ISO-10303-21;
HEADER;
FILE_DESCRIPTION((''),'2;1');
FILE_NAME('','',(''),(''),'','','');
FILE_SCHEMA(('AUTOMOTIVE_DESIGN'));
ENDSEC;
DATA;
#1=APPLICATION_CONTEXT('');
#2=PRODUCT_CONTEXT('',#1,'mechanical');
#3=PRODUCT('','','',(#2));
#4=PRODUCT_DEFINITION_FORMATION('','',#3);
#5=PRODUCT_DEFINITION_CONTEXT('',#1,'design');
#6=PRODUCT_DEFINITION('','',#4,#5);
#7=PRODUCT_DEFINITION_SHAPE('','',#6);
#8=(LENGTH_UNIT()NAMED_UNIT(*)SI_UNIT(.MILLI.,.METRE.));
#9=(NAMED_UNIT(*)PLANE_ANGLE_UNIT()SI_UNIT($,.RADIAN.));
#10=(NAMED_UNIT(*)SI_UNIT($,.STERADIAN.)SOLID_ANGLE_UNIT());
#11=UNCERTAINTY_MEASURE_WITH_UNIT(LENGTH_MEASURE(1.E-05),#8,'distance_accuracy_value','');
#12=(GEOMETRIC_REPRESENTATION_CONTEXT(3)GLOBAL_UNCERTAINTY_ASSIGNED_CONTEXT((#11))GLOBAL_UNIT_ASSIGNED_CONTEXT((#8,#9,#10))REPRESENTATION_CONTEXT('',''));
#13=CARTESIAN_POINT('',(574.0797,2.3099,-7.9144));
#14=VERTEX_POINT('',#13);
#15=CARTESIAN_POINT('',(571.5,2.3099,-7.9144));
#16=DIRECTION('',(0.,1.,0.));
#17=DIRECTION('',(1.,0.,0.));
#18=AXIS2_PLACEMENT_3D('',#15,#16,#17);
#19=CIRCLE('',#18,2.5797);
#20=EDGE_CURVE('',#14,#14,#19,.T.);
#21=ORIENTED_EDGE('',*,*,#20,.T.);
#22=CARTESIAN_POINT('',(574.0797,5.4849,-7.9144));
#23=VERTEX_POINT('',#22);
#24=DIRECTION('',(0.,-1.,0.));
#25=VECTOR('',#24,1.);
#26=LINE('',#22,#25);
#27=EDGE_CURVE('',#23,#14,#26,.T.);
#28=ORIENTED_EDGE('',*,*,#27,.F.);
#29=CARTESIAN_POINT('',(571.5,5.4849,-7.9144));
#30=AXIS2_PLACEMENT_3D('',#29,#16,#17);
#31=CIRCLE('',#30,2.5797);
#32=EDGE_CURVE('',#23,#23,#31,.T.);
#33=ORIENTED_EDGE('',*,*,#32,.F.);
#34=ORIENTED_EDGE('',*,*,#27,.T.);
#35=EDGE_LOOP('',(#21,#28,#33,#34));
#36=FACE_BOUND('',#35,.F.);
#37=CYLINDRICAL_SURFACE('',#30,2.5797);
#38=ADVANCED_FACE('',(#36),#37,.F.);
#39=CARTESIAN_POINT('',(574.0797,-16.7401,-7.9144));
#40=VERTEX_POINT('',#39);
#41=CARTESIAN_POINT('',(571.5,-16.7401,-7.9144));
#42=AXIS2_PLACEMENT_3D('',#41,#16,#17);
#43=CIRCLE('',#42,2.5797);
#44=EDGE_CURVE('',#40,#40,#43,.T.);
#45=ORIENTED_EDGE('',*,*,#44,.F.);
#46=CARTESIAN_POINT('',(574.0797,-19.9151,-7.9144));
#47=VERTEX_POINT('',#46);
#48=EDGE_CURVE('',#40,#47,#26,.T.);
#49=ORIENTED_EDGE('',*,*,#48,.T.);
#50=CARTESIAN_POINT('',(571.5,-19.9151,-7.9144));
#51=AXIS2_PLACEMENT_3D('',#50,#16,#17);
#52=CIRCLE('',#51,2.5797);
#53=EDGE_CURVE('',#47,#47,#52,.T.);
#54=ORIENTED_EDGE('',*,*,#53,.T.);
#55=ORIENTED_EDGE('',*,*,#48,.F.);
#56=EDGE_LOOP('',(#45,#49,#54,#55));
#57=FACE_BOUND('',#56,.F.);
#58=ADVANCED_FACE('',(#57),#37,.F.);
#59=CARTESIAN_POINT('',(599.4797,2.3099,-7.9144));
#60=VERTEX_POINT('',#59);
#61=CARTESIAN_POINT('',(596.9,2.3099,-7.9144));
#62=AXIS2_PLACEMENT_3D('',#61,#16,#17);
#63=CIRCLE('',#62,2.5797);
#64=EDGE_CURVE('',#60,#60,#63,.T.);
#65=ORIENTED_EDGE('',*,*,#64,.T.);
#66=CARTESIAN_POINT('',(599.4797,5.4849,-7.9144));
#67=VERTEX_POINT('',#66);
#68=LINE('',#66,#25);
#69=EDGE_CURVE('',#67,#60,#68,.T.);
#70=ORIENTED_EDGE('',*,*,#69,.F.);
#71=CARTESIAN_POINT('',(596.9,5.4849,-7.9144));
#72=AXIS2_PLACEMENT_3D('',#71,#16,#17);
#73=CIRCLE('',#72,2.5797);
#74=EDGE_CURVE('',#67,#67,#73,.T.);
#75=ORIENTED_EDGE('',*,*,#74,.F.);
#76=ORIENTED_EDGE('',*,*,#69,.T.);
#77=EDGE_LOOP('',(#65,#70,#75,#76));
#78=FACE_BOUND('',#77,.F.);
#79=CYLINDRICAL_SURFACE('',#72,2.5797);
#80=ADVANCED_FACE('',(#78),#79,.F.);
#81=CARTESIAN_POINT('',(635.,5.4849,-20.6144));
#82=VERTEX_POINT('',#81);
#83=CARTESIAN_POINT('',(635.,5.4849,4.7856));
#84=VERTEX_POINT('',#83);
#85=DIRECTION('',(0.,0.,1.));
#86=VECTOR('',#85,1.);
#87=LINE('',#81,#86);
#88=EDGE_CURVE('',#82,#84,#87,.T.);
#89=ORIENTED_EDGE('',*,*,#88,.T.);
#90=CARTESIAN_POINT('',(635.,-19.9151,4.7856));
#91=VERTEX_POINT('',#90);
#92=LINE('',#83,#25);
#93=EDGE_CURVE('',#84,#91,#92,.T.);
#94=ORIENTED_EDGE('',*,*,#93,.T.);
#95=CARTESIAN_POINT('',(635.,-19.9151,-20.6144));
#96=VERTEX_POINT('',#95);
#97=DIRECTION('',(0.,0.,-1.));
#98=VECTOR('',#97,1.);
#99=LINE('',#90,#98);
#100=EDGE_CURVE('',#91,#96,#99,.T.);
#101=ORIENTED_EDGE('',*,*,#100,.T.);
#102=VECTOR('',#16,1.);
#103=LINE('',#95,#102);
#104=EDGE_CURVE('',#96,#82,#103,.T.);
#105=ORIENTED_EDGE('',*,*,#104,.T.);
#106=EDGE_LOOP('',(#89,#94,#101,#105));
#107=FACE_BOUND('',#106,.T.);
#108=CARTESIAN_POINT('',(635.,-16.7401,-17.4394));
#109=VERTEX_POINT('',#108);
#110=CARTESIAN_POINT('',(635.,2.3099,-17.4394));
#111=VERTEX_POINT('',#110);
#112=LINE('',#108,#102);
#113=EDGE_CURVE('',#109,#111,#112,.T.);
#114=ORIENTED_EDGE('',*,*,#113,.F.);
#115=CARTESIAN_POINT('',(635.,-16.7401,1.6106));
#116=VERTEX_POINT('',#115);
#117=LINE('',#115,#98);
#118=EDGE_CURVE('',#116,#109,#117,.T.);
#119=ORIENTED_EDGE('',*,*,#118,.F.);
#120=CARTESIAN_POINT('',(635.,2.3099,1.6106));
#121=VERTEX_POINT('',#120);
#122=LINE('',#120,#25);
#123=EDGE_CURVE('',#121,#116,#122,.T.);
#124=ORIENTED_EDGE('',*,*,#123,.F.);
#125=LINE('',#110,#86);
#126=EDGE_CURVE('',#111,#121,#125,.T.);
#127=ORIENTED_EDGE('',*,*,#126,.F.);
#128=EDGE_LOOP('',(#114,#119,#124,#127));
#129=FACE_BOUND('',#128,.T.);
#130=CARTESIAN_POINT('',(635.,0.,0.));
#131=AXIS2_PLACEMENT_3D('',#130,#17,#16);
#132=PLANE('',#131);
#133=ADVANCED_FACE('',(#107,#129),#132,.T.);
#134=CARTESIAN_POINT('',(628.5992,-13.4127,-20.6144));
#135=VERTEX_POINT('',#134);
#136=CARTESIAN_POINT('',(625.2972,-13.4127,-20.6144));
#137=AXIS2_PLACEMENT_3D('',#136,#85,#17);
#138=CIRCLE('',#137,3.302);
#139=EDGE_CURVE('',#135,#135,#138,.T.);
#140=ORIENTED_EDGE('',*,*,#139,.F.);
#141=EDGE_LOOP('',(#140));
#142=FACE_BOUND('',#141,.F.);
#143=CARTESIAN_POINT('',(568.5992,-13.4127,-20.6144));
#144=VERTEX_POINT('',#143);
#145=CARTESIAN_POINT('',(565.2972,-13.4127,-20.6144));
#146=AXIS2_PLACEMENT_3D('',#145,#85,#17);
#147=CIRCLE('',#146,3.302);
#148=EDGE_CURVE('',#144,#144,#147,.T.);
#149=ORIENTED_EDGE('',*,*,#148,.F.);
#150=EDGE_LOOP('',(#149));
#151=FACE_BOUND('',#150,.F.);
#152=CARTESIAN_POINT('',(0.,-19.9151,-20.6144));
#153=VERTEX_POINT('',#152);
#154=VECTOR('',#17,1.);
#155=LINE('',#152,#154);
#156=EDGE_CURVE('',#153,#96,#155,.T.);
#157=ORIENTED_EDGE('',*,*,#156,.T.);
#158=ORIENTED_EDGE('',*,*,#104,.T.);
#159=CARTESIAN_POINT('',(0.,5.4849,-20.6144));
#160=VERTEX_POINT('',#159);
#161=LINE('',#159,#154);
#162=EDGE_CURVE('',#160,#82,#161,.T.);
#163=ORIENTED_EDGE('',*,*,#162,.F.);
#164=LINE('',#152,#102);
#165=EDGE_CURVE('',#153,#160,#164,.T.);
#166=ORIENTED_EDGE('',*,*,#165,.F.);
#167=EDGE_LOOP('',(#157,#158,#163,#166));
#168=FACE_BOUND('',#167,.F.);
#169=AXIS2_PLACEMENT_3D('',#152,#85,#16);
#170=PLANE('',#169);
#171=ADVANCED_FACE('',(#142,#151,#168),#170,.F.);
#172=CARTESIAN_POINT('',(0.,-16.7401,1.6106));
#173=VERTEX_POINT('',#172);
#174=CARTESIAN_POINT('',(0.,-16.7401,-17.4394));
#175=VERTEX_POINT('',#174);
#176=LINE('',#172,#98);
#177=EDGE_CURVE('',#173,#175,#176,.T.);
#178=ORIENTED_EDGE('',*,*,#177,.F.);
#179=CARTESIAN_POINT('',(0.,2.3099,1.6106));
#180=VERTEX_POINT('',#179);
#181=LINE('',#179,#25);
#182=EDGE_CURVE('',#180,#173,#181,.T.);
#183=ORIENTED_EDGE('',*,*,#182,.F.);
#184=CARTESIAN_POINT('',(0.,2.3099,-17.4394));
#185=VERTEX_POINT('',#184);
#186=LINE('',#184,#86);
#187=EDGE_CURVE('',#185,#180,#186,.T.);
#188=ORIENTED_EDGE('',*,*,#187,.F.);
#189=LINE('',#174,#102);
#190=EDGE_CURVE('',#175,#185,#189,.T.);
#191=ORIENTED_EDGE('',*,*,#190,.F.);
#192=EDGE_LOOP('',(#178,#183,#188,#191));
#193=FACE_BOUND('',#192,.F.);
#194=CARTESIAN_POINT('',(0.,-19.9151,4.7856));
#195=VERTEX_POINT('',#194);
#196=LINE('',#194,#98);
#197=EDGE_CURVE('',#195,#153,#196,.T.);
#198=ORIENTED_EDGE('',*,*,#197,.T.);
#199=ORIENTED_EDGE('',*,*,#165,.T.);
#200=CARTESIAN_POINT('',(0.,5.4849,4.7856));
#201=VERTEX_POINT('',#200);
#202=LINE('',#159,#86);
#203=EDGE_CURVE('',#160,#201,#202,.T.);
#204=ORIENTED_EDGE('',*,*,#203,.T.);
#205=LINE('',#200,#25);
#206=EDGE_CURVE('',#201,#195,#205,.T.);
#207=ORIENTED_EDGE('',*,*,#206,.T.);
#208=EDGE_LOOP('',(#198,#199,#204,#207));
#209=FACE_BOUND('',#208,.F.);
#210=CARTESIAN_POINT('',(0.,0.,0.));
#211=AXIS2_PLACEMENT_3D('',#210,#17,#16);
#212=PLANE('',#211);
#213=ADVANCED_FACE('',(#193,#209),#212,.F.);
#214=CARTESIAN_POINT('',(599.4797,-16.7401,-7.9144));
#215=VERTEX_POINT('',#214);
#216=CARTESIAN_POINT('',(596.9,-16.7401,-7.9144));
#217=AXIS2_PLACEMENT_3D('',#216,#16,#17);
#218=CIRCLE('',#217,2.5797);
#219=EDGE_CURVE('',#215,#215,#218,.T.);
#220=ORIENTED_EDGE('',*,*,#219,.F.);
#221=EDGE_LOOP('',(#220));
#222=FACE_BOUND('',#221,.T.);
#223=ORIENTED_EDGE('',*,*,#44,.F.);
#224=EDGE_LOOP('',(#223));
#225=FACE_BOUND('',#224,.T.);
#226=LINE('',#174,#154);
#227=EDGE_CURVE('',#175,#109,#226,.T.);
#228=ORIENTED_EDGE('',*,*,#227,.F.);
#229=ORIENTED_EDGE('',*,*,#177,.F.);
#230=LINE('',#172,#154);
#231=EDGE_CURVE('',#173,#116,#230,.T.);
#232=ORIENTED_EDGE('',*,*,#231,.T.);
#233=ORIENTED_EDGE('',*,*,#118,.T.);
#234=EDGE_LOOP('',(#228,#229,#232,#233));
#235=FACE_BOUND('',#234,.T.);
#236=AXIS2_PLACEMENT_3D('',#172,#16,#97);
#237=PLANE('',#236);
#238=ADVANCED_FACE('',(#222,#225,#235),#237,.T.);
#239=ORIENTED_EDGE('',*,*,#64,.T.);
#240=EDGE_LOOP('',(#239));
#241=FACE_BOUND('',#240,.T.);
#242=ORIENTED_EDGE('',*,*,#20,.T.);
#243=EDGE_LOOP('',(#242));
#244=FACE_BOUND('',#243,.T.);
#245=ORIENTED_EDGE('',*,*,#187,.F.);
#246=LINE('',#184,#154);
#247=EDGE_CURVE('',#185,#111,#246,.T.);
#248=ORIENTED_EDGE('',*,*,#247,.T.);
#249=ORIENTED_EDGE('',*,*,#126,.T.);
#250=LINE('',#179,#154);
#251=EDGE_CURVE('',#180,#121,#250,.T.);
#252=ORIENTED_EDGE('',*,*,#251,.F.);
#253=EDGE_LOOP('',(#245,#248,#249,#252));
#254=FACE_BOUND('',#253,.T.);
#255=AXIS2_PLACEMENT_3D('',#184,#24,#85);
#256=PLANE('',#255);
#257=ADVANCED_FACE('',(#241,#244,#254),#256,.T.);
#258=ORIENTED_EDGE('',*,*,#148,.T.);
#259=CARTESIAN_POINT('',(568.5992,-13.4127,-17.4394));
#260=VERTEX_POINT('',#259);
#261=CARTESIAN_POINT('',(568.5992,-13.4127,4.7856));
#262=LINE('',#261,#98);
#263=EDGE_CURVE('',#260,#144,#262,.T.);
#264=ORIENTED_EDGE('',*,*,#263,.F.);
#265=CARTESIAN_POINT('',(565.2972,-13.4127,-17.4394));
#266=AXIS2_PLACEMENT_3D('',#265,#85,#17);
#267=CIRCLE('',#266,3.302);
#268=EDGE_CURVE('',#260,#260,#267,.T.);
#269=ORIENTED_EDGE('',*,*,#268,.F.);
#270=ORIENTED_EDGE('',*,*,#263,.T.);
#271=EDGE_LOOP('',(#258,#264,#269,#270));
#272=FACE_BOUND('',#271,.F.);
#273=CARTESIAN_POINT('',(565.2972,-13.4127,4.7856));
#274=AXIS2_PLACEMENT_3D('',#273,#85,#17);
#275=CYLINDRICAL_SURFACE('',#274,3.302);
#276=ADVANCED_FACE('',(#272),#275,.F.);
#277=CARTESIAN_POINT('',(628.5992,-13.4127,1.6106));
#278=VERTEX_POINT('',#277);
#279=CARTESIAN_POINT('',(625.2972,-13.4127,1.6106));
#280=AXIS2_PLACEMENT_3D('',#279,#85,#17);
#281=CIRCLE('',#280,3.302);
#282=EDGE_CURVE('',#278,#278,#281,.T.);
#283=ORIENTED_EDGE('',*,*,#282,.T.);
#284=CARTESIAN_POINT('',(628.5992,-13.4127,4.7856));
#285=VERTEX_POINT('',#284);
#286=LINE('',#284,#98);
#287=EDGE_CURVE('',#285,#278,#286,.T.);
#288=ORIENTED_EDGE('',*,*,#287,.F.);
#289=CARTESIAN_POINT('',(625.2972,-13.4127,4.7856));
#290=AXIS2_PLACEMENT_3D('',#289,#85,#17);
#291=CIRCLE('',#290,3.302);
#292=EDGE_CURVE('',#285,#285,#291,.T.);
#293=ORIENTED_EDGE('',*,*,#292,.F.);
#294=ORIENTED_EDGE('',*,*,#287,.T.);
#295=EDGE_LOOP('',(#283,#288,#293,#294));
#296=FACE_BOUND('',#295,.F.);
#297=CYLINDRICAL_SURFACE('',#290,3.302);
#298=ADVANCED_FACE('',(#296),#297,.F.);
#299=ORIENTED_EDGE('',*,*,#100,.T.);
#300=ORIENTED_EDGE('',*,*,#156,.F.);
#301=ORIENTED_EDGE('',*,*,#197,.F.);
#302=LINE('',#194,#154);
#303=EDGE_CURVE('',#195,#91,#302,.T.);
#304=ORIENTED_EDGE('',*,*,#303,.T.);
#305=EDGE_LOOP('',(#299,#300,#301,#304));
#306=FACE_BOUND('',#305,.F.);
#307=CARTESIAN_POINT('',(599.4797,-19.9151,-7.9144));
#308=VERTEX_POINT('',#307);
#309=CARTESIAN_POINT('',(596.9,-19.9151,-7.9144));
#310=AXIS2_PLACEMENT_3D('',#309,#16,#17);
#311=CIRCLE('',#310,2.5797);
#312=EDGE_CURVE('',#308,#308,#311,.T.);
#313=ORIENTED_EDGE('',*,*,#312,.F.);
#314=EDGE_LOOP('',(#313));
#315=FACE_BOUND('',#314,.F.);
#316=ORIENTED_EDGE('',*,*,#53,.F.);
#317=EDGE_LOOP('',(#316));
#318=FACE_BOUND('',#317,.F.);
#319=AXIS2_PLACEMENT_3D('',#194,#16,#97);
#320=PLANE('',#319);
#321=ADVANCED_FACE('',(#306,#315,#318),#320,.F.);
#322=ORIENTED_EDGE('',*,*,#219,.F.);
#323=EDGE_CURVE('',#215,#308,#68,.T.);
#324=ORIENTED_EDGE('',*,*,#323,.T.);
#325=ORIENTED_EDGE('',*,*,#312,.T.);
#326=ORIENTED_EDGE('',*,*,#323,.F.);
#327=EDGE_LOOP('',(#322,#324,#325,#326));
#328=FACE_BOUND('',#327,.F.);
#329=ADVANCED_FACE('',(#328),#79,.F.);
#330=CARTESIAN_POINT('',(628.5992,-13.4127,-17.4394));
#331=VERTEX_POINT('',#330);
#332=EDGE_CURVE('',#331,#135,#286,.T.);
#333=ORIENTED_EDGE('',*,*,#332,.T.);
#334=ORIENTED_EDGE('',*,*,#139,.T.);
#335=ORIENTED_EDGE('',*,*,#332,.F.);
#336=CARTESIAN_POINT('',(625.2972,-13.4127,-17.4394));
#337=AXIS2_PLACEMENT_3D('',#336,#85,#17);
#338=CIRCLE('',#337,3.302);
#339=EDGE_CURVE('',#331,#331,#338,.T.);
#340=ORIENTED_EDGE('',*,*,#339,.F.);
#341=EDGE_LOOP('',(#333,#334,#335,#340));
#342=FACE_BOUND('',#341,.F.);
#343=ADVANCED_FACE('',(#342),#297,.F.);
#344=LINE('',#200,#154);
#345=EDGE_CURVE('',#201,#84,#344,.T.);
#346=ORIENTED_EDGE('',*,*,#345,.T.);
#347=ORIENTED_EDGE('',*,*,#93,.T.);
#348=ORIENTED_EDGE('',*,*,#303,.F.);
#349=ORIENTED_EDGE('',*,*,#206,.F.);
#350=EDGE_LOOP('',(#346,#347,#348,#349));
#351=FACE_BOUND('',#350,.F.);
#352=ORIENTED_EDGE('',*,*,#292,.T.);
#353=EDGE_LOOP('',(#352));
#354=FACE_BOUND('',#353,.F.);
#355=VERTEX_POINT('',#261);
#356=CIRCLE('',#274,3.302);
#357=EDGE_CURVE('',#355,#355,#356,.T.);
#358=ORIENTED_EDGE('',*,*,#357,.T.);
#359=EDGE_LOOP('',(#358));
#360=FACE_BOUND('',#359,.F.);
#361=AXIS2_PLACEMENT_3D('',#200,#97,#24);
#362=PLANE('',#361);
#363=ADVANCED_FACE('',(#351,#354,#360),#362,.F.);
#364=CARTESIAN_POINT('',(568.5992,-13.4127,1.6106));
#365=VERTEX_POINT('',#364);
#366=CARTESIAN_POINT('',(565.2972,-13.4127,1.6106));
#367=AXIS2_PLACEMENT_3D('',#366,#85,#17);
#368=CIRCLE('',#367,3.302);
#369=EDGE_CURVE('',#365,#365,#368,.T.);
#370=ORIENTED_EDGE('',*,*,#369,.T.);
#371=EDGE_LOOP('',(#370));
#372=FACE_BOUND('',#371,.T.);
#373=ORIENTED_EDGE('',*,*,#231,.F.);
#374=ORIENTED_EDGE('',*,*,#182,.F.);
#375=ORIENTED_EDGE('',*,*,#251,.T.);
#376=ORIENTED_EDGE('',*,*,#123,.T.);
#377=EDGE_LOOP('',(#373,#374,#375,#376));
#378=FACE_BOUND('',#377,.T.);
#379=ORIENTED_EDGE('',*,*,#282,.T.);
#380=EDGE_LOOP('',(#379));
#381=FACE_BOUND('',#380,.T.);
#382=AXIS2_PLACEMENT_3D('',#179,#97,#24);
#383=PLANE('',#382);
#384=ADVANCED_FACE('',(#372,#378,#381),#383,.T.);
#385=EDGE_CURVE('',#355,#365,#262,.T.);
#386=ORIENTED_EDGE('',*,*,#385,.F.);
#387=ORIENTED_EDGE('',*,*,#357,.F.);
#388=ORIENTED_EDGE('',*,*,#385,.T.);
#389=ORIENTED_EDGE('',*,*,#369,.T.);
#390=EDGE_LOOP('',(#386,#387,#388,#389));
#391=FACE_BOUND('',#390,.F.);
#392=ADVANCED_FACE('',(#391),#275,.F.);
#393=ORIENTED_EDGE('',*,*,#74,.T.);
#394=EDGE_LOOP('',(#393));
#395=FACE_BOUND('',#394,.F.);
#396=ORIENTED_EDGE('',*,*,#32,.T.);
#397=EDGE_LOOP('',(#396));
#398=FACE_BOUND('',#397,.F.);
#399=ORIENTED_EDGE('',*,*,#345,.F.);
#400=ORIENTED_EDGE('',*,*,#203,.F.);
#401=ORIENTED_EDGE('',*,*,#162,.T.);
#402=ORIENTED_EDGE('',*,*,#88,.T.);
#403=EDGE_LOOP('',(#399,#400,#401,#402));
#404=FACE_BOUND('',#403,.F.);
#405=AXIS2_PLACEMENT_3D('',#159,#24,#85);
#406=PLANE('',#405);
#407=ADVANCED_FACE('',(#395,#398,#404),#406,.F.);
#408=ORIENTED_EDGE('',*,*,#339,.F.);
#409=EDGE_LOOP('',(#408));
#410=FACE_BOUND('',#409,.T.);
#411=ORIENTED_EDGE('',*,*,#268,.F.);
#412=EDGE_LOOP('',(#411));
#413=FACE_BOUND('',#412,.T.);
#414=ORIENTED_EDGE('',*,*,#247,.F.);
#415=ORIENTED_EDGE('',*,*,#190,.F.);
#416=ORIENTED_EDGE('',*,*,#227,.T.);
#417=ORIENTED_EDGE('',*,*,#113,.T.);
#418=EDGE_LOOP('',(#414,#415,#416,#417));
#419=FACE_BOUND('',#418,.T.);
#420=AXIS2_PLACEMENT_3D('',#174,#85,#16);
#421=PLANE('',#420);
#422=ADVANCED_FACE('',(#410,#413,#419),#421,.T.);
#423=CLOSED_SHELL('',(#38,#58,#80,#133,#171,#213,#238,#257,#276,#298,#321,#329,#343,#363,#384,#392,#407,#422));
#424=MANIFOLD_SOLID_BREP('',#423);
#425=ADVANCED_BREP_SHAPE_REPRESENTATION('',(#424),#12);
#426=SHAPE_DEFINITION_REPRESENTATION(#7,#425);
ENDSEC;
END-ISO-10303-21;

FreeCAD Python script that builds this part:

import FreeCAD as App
import Part
import Sketcher
Q = App.Units.Quantity


def add_polygon(sketch, points):
    """Adds a closed chain of lines whose ends are joined by coincident constraints."""
    first, n = sketch.GeometryCount, len(points)
    for a, b in zip(points, points[1:] + points[:1]):
        sketch.addGeometry(Part.LineSegment(App.Vector(*a, 0), App.Vector(*b, 0)), False)
    for i in range(n):
        sketch.addConstraint(Sketcher.Constraint("Coincident", first + i, 2, first + (i + 1) % n, 1))

doc = App.newDocument("Part")
body = doc.addObject("PartDesign::Body", "Body")

# Sketch on YZ plane
sketch1 = body.newObject("Sketcher::SketchObject", "Sketch")
sketch1.AttachmentSupport = (doc.getObject("YZ_Plane"), [""])
sketch1.MapMode = "FlatFace"
add_polygon(sketch1, [(5, -21), (5, 5), (-20, 5), (-20, -21)])  # lines 0-3
add_polygon(sketch1, [(-17, 2), (2, 2), (2, -17), (-17, -17)])  # lines 4-7
sketch1.addConstraint(Sketcher.Constraint("Vertical", 0))
sketch1.addConstraint(Sketcher.Constraint("Horizontal", 1))
sketch1.addConstraint(Sketcher.Constraint("Vertical", 2))
sketch1.addConstraint(Sketcher.Constraint("Horizontal", 3))
sketch1.addConstraint(Sketcher.Constraint("Horizontal", 4))
sketch1.addConstraint(Sketcher.Constraint("Vertical", 5))
sketch1.addConstraint(Sketcher.Constraint("Horizontal", 6))
sketch1.addConstraint(Sketcher.Constraint("Vertical", 7))
sketch1.addConstraint(Sketcher.Constraint("Equal", 3, 0))
sketch1.addConstraint(Sketcher.Constraint("Equal", 6, 5))
sketch1.addConstraint(Sketcher.Constraint("DistanceX", 1, 2, 1, 1, Q("1 in")))
sketch1.addConstraint(Sketcher.Constraint("DistanceX", 4, 2, 0, 2, Q("0.125 in")))
sketch1.addConstraint(Sketcher.Constraint("DistanceY", 4, 2, 0, 2, Q("0.125 in")))
sketch1.addConstraint(Sketcher.Constraint("DistanceY", 3, 2, 5, 2, Q("0.125 in")))
sketch1.addConstraint(Sketcher.Constraint("DistanceY", -1, 1, 0, 2, Q("0.1884 in")))
sketch1.addConstraint(Sketcher.Constraint("DistanceX", -1, 1, 0, 2, 5.485))
pad1 = body.newObject("PartDesign::Pad", "Pad")
pad1.Profile = sketch1
pad1.Length = Q("25 in")

# Sketch on XY plane
sketch2 = body.newObject("Sketcher::SketchObject", "Sketch001")
sketch2.AttachmentSupport = (doc.getObject("XY_Plane"), [""])
sketch2.MapMode = "FlatFace"
sketch2.AttachmentOffset = App.Placement(App.Vector(0, 0, 0.1884094 * 25.4), App.Rotation())
sketch2.addGeometry(Part.Circle(App.Vector(625.3, -13.4, 0), App.Vector(0, 0, 1), 3.3), False)
sketch2.addConstraint(Sketcher.Constraint("Diameter", 0, Q("0.26 in")))
sketch2.addConstraint(Sketcher.Constraint("DistanceX", -1, 1, 0, 3, Q("24.618 in")))
sketch2.addConstraint(Sketcher.Constraint("DistanceY", 0, 3, -1, 1, 13.4127))
pocket1 = body.newObject("PartDesign::Pocket", "Pocket")
pocket1.Profile = sketch2
pocket1.Length = Q("1 in")

# Sketch on XZ plane
sketch3 = body.newObject("Sketcher::SketchObject", "Sketch002")
sketch3.AttachmentSupport = (doc.getObject("XZ_Plane"), [""])
sketch3.MapMode = "FlatFace"
sketch3.AttachmentOffset = App.Placement(App.Vector(0, 0, -5.4849), App.Rotation())
sketch3.addGeometry(Part.Circle(App.Vector(571.5, -7.9, 0), App.Vector(0, 0, 1), 2.6), False)
sketch3.addGeometry(Part.Circle(App.Vector(596.9, -7.9, 0), App.Vector(0, 0, 1), 2.6), False)
sketch3.addConstraint(Sketcher.Constraint("Equal", 0, 1))
sketch3.addConstraint(Sketcher.Constraint("Horizontal", 0, 3, 1, 3))
sketch3.addConstraint(Sketcher.Constraint("Diameter", 0, Q("0.203126 in")))
sketch3.addConstraint(Sketcher.Constraint("DistanceX", 0, 3, 1, 3, Q("1 in")))
sketch3.addConstraint(Sketcher.Constraint("DistanceX", -1, 1, 0, 3, Q("22.5 in")))
sketch3.addConstraint(Sketcher.Constraint("DistanceY", 0, 3, -1, 1, Q("0.3116 in")))
pocket2 = body.newObject("PartDesign::Pocket", "Pocket001")
pocket2.Profile = sketch3
pocket2.Length = Q("1 in")
pocket2.Reversed = True

# Sketch on XY plane
sketch4 = body.newObject("Sketcher::SketchObject", "Sketch003")
sketch4.AttachmentSupport = (doc.getObject("XY_Plane"), [""])
sketch4.MapMode = "FlatFace"
sketch4.AttachmentOffset = App.Placement(App.Vector(0, 0, 0.1884094 * 25.4), App.Rotation())
sketch4.addGeometry(Part.Circle(App.Vector(565.3, -13.4, 0), App.Vector(0, 0, 1), 3.3), False)
sketch4.addConstraint(Sketcher.Constraint("Diameter", 0, Q("0.26 in")))
sketch4.addConstraint(Sketcher.Constraint("DistanceX", -1, 1, 0, 3, Q("22.2558 in")))
sketch4.addConstraint(Sketcher.Constraint("DistanceY", 0, 3, -1, 1, 13.4127))
pocket3 = body.newObject("PartDesign::Pocket", "Pocket002")
pocket3.Profile = sketch4
pocket3.Length = Q("1 in")

doc.recompute()
